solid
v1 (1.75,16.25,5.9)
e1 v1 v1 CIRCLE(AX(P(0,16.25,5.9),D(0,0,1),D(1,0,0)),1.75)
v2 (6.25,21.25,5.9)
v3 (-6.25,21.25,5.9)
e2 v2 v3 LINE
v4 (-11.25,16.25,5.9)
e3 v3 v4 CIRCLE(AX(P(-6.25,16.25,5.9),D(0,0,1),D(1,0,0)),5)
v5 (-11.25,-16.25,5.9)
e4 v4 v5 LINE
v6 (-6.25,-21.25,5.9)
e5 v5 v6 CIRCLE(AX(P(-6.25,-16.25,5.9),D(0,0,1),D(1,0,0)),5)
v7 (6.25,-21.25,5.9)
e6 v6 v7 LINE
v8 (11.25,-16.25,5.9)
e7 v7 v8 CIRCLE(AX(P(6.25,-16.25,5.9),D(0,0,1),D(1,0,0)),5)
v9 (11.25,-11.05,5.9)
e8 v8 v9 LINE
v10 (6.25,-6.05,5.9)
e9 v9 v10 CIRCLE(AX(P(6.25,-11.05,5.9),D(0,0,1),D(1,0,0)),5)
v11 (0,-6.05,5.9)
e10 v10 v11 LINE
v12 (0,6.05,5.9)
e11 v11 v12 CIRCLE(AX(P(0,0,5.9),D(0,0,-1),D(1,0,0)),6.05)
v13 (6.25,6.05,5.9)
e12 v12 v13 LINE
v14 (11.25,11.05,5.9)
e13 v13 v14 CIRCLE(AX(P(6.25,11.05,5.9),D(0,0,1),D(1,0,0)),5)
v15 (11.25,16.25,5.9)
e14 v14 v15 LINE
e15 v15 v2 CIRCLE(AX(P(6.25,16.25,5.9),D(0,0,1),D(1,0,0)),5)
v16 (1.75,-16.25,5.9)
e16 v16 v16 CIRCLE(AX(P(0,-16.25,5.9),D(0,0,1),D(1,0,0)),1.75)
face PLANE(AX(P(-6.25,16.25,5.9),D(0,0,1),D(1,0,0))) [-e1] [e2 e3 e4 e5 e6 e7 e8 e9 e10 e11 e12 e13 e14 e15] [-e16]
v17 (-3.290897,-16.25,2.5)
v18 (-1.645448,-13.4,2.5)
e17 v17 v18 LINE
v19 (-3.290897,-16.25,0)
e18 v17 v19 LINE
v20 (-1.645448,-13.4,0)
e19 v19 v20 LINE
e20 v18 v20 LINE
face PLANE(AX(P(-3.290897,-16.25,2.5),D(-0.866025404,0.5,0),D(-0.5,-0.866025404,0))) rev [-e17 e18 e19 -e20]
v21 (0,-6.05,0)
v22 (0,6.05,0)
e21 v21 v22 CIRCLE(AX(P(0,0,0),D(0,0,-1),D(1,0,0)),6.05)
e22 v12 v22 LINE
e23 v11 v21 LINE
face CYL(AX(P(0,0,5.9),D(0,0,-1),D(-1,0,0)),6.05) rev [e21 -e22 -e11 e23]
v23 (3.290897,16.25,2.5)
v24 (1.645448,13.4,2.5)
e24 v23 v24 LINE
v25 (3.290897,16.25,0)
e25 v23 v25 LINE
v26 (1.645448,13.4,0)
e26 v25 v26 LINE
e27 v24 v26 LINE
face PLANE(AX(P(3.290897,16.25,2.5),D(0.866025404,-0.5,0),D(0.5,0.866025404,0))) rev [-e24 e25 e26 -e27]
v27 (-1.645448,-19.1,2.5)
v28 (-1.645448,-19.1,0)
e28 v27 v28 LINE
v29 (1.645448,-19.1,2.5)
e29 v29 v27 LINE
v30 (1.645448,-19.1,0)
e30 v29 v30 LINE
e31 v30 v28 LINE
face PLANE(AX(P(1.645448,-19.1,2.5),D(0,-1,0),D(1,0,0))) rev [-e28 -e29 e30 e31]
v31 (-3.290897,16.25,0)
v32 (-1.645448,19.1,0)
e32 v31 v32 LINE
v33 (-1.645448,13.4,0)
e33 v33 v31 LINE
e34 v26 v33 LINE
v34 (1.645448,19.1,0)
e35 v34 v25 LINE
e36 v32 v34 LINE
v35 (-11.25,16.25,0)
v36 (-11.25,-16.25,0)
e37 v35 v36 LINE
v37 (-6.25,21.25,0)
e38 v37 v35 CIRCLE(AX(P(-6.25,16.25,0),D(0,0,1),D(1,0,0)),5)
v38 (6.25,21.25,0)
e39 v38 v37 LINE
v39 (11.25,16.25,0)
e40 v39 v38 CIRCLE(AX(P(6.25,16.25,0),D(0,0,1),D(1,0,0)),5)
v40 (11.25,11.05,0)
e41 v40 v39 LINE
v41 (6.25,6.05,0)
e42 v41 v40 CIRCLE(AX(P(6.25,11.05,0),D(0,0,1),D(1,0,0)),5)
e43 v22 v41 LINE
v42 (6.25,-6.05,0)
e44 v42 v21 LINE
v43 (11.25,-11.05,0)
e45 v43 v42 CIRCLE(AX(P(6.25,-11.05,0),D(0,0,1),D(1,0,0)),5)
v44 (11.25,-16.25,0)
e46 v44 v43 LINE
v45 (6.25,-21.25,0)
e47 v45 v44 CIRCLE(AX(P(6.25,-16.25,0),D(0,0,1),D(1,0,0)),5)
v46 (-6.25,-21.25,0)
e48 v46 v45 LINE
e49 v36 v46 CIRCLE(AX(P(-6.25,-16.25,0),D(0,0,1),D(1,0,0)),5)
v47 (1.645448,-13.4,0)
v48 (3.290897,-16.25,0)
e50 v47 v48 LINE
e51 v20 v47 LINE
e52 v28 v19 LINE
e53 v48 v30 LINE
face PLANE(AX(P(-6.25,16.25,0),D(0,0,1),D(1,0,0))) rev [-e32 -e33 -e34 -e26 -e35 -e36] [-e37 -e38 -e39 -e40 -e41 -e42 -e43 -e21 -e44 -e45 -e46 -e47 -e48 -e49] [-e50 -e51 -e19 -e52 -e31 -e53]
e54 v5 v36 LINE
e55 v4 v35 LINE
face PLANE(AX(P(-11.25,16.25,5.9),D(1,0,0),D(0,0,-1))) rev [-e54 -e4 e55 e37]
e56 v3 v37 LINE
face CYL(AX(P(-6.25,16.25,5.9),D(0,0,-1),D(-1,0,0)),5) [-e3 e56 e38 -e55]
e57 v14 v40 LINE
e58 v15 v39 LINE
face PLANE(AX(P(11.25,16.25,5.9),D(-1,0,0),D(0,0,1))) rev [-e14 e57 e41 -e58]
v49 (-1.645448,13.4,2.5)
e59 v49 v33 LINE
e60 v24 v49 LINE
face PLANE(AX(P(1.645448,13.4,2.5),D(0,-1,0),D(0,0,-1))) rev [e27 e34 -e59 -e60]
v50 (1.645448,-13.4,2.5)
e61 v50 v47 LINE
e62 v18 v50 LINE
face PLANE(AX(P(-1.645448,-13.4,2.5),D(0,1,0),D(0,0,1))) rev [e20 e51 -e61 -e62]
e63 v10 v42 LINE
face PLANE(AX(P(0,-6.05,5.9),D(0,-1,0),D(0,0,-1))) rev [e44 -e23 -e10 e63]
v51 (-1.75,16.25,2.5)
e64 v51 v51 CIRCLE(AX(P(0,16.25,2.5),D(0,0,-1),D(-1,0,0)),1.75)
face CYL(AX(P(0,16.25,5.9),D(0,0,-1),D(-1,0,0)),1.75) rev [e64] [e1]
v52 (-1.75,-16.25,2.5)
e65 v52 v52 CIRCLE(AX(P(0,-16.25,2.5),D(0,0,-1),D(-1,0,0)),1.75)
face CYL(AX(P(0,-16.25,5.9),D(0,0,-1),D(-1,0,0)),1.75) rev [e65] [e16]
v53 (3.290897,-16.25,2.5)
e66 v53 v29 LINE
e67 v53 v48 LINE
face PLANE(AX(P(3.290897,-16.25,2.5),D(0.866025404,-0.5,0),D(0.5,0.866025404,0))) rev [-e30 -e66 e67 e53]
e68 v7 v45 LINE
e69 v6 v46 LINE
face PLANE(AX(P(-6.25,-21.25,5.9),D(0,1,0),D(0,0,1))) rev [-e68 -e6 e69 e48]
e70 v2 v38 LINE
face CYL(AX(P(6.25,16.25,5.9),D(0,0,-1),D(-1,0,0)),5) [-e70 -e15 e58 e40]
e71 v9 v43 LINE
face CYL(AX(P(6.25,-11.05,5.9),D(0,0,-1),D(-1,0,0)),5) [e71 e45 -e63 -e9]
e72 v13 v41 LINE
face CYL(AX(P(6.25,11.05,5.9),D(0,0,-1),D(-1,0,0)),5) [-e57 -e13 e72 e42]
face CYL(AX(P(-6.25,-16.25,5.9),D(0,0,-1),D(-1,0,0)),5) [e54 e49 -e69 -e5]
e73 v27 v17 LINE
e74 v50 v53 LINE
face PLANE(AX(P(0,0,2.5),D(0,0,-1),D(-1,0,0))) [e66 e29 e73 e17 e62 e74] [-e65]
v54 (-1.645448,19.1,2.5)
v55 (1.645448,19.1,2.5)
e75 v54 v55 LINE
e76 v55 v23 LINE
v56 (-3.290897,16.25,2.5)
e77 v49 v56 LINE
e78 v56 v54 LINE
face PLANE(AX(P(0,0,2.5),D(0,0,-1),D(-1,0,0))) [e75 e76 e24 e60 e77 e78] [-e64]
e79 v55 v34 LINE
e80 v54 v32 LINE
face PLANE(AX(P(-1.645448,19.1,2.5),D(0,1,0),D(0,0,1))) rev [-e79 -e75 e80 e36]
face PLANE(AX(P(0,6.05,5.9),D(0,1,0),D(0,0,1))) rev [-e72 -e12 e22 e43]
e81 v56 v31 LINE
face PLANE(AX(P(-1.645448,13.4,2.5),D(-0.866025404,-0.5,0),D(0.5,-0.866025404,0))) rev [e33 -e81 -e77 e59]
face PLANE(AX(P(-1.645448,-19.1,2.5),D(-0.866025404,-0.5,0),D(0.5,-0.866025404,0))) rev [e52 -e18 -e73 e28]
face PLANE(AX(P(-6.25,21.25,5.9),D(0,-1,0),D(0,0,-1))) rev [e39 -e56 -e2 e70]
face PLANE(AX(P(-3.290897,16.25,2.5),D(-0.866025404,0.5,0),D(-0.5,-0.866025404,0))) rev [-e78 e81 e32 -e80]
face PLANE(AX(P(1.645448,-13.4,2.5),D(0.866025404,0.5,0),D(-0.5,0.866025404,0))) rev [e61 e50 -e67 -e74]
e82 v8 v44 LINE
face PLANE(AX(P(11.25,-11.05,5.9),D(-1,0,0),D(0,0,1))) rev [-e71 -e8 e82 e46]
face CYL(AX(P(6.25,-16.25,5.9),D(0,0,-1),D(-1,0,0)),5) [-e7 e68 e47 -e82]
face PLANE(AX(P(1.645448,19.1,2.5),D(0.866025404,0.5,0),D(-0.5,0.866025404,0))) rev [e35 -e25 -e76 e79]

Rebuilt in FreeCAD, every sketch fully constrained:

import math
import FreeCAD as App
import Part
import Sketcher
Q = App.Units.Quantity


def add_polygon(sketch, points):
    """Adds a closed chain of lines whose ends are joined by coincident constraints."""
    first, n = sketch.GeometryCount, len(points)
    for a, b in zip(points, points[1:] + points[:1]):
        sketch.addGeometry(Part.LineSegment(App.Vector(*a, 0), App.Vector(*b, 0)), False)
    for i in range(n):
        sketch.addConstraint(Sketcher.Constraint("Coincident", first + i, 2, first + (i + 1) % n, 1))

doc = App.newDocument("Part")
params = doc.addObject("Spreadsheet::Sheet", "Params")
for row, (alias, value) in enumerate([
    ("sketch1_radius", "5 mm"),
    ("sketch1_diameter", "3.5 mm"),
    ("sketch1_radius2", "6.05 mm"),
    ("sketch1_width", "12.5 mm"),
    ("sketch1_height", "32.5 mm"),
    ("pad1_length", "5.9 mm"),
    ("pocket1_length", "2.5 mm"),
], start=1):
    params.set(f"A{row}", alias)
    params.set(f"B{row}", "=" + value)
    params.setAlias(f"B{row}", alias)

body = doc.addObject("PartDesign::Body", "Body")

sketch1 = body.newObject("Sketcher::SketchObject", "Sketch")
sketch1.AttachmentSupport = (doc.getObject("XY_Plane"), [""])
sketch1.MapMode = "FlatFace"
sketch1.addGeometry([
    Part.LineSegment(App.Vector(-11.25, 16.25, 0), App.Vector(-11.25, -16.25, 0)),
    Part.ArcOfCircle(Part.Circle(App.Vector(-6.25, -16.25, 0), App.Vector(0, 0, 1), 5), math.radians(180), math.radians(270)),
    Part.LineSegment(App.Vector(-6.25, -21.25, 0), App.Vector(6.25, -21.25, 0)),
    Part.ArcOfCircle(Part.Circle(App.Vector(6.25, -16.25, 0), App.Vector(0, 0, 1), 5), math.radians(-90), math.radians(0)),
    Part.LineSegment(App.Vector(11.25, -16.25, 0), App.Vector(11.25, -11.05, 0)),
    Part.ArcOfCircle(Part.Circle(App.Vector(6.25, -11.05, 0), App.Vector(0, 0, 1), 5), math.radians(0), math.radians(90)),
    Part.LineSegment(App.Vector(6.25, -6.05, 0), App.Vector(0, -6.05, 0)),
    Part.ArcOfCircle(Part.Circle(App.Vector(0, 0, 0), App.Vector(0, 0, 1), 6.05), math.radians(90), math.radians(270)),
    Part.LineSegment(App.Vector(0, 6.05, 0), App.Vector(6.25, 6.05, 0)),
    Part.ArcOfCircle(Part.Circle(App.Vector(6.25, 11.05, 0), App.Vector(0, 0, 1), 5), math.radians(-90), math.radians(0)),
    Part.LineSegment(App.Vector(11.25, 11.05, 0), App.Vector(11.25, 16.25, 0)),
    Part.ArcOfCircle(Part.Circle(App.Vector(6.25, 16.25, 0), App.Vector(0, 0, 1), 5), math.radians(0), math.radians(90)),
    Part.LineSegment(App.Vector(6.25, 21.25, 0), App.Vector(-6.25, 21.25, 0)),
    Part.ArcOfCircle(Part.Circle(App.Vector(-6.25, 16.25, 0), App.Vector(0, 0, 1), 5), math.radians(90), math.radians(180)),
    Part.Circle(App.Vector(0, -16.25, 0), App.Vector(0, 0, 1), 1.75),
    Part.Circle(App.Vector(0, 16.25, 0), App.Vector(0, 0, 1), 1.75),
], False)
sketch1.addConstraint([
    Sketcher.Constraint("Tangent", 0, 2, 1, 1),
    Sketcher.Constraint("Tangent", 1, 2, 2, 1),
    Sketcher.Constraint("Tangent", 2, 2, 3, 1),
    Sketcher.Constraint("Tangent", 3, 2, 4, 1),
    Sketcher.Constraint("Tangent", 4, 2, 5, 1),
    Sketcher.Constraint("Tangent", 5, 2, 6, 1),
    Sketcher.Constraint("Tangent", 6, 2, 7, 2),
    Sketcher.Constraint("Tangent", 7, 1, 8, 1),
    Sketcher.Constraint("Tangent", 8, 2, 9, 1),
    Sketcher.Constraint("Tangent", 9, 2, 10, 1),
    Sketcher.Constraint("Tangent", 10, 2, 11, 1),
    Sketcher.Constraint("Tangent", 11, 2, 12, 1),
    Sketcher.Constraint("Tangent", 12, 2, 13, 1),
    Sketcher.Constraint("Tangent", 13, 2, 0, 1),
    Sketcher.Constraint("Vertical", 0),
    Sketcher.Constraint("Horizontal", 2),
    Sketcher.Constraint("Vertical", 4),
    Sketcher.Constraint("Horizontal", 6),
    Sketcher.Constraint("Horizontal", 8),
    Sketcher.Constraint("Vertical", 10),
    Sketcher.Constraint("Horizontal", 12),
    Sketcher.Constraint("Coincident", 7, 3, -1, 1),
    Sketcher.Constraint("Equal", 1, 3),
    Sketcher.Constraint("Equal", 3, 5),
    Sketcher.Constraint("Equal", 5, 9),
    Sketcher.Constraint("Equal", 9, 11),
    Sketcher.Constraint("Equal", 11, 13),
    Sketcher.Constraint("Equal", 14, 15),
    Sketcher.Constraint("Symmetric", 1, 3, 11, 3, -1, 1),
    Sketcher.Constraint("Symmetric", 14, 3, 15, 3, -1, 1),
    Sketcher.Constraint("PointOnObject", 14, 3, -2),
    Sketcher.Constraint("Horizontal", 3, 3, 14, 3),
    Sketcher.Constraint("Vertical", 5, 3, 9, 3),
    Sketcher.Constraint("Radius", 1, Q("5 mm")),
    Sketcher.Constraint("Diameter", 14, Q("3.5 mm")),
    Sketcher.Constraint("Radius", 7, Q("6.05 mm")),
    Sketcher.Constraint("DistanceX", 2, 1, 2, 2, Q("12.5 mm")),
    Sketcher.Constraint("DistanceY", 0, 2, 0, 1, Q("32.5 mm")),
])
sketch1.setExpression("Constraints[33]", "Params.sketch1_radius")
sketch1.setExpression("Constraints[34]", "Params.sketch1_diameter")
sketch1.setExpression("Constraints[35]", "Params.sketch1_radius2")
sketch1.setExpression("Constraints[36]", "Params.sketch1_width")
sketch1.setExpression("Constraints[37]", "Params.sketch1_height")
pad1 = body.newObject("PartDesign::Pad", "Pad")
pad1.Profile = sketch1
pad1.setExpression("Length", "Params.pad1_length")

sketch2 = body.newObject("Sketcher::SketchObject", "Sketch001")
sketch2.AttachmentSupport = (doc.getObject("XY_Plane"), [""])
sketch2.MapMode = "FlatFace"
add_polygon(sketch2, [(-1.645448, 13.4), (-3.290897, 16.25), (-1.645448, 19.1), (1.645448, 19.1), (3.290897, 16.25), (1.645448, 13.4)])
add_polygon(sketch2, [(1.645448, -13.4), (3.290897, -16.25), (1.645448, -19.1), (-1.645448, -19.1), (-3.290897, -16.25), (-1.645448, -13.4)])
sketch2.addConstraint([
    Sketcher.Constraint("Horizontal", 2),
    Sketcher.Constraint("Horizontal", 5),
    Sketcher.Constraint("Horizontal", 8),
    Sketcher.Constraint("Horizontal", 11),
    Sketcher.Constraint("Symmetric", 0, 2, 6, 2, -1, 1),
    Sketcher.Constraint("Symmetric", 1, 2, 7, 2, -1, 1),
    Sketcher.Constraint("Symmetric", 3, 2, 9, 2, -1, 1),
    Sketcher.Constraint("Symmetric", 4, 2, 10, 2, -1, 1),
    Sketcher.Constraint("Symmetric", 0, 2, 3, 2, -2),
    Sketcher.Constraint("Parallel", 0, 3),
    Sketcher.Constraint("Parallel", 1, 4),
    Sketcher.Constraint("Parallel", 3, 6),
    Sketcher.Constraint("Parallel", 6, 9),
    Sketcher.Constraint("Vertical", 2, 2, 4, 2),
    Sketcher.Constraint("Vertical", 1, 2, 5, 2),
    Sketcher.Constraint("Angle", 0, Q("120 deg")),
    Sketcher.Constraint("DistanceY", -1, 1, 1, 2, Q("19.1 mm")),
    Sketcher.Constraint("DistanceY", -1, 1, 4, 2, Q("13.4 mm")),
    Sketcher.Constraint("DistanceX", 2, 1, 2, 2, Q("3.290897 mm")),
])
pocket1 = body.newObject("PartDesign::Pocket", "Pocket")
pocket1.Profile = sketch2
pocket1.setExpression("Length", "Params.pocket1_length")
pocket1.Reversed = True

doc.recompute()
